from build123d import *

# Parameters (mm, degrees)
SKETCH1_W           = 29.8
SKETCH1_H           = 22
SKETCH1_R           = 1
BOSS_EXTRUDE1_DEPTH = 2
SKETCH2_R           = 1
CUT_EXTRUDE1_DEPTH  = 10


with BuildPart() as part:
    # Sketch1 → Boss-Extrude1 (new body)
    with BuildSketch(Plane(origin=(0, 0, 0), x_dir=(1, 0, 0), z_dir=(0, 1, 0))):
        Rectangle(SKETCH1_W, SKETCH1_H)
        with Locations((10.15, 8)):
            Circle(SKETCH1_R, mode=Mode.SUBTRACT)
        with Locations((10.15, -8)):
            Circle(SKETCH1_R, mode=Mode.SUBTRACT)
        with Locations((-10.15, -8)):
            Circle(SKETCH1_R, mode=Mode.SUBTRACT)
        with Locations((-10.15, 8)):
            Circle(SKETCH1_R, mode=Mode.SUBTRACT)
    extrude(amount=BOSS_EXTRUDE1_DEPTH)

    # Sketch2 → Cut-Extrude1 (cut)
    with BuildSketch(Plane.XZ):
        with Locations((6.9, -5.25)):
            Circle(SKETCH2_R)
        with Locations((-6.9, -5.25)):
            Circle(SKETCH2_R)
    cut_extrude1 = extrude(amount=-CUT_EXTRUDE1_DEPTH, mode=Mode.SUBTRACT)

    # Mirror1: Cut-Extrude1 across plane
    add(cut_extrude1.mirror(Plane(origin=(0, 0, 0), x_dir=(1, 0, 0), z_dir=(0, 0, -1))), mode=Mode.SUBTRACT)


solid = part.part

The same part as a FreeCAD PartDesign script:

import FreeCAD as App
import Part
import Sketcher

V = App.Vector


def add_polygon(sketch, points):
    """Adds a closed chain of lines whose ends are joined by coincident constraints."""
    first, n = sketch.GeometryCount, len(points)
    for a, b in zip(points, points[1:] + points[:1]):
        sketch.addGeometry(Part.LineSegment(App.Vector(*a, 0), App.Vector(*b, 0)), False)
    for i in range(n):
        sketch.addConstraint(Sketcher.Constraint("Coincident", first + i, 2, first + (i + 1) % n, 1))

doc = App.newDocument("Part")
body = doc.addObject("PartDesign::Body", "Body")

# Sketch on XZ plane
sketch1 = body.newObject("Sketcher::SketchObject", "Sketch")
sketch1.AttachmentSupport = (doc.getObject("XZ_Plane"), [""])
sketch1.MapMode = "FlatFace"
add_polygon(sketch1, [(-14.9, -11), (-14.9, 11), (14.9, 11), (14.9, -11)])  # lines 0-3
sketch1.addGeometry(Part.Circle(V(-10.15, 8, 0), V(0, 0, 1), 1), False)  # 4
sketch1.addGeometry(Part.Circle(V(10.15, 8, 0), V(0, 0, 1), 1), False)  # 5
sketch1.addGeometry(Part.Circle(V(-10.15, -8, 0), V(0, 0, 1), 1), False)  # 6
sketch1.addGeometry(Part.Circle(V(10.15, -8, 0), V(0, 0, 1), 1), False)  # 7
sketch1.addConstraint(Sketcher.Constraint("Vertical", 0))
sketch1.addConstraint(Sketcher.Constraint("Horizontal", 1))
sketch1.addConstraint(Sketcher.Constraint("Vertical", 2))
sketch1.addConstraint(Sketcher.Constraint("Horizontal", 3))
sketch1.addConstraint(Sketcher.Constraint("Equal", 4, 5))
sketch1.addConstraint(Sketcher.Constraint("Equal", 5, 6))
sketch1.addConstraint(Sketcher.Constraint("Equal", 6, 7))
sketch1.addConstraint(Sketcher.Constraint("Symmetric", 5, 3, 6, 3, -1, 1))
sketch1.addConstraint(Sketcher.Constraint("Symmetric", 4, 3, 7, 3, -1, 1))
sketch1.addConstraint(Sketcher.Constraint("Symmetric", 0, 2, 2, 2, -1, 1))
sketch1.addConstraint(Sketcher.Constraint("Symmetric", 4, 3, 5, 3, -2))
sketch1.addConstraint(Sketcher.Constraint("Diameter", 4, 2.0))
sketch1.addConstraint(Sketcher.Constraint("DistanceY", 0, 1, 0, 2, 22.0))
sketch1.addConstraint(Sketcher.Constraint("DistanceX", 1, 1, 1, 2, 29.8))
sketch1.addConstraint(Sketcher.Constraint("DistanceY", -1, 1, 4, 3, 8.0))
sketch1.addConstraint(Sketcher.Constraint("DistanceX", 4, 3, 5, 3, 20.3))
pad1 = body.newObject("PartDesign::Pad", "Pad")
pad1.Profile = sketch1
pad1.Length = 2
pad1.Reversed = True

# Sketch on XZ plane
sketch2 = body.newObject("Sketcher::SketchObject", "Sketch001")
sketch2.AttachmentSupport = (doc.getObject("XZ_Plane"), [""])
sketch2.MapMode = "FlatFace"
sketch2.addGeometry(Part.Circle(V(6.9, -5.25, 0), V(0, 0, 1), 1), False)
sketch2.addGeometry(Part.Circle(V(-6.9, -5.25, 0), V(0, 0, 1), 1), False)
sketch2.addConstraint(Sketcher.Constraint("Equal", 0, 1))
sketch2.addConstraint(Sketcher.Constraint("Symmetric", 0, 3, 1, 3, -2))
sketch2.addConstraint(Sketcher.Constraint("Diameter", 0, 2.0))
sketch2.addConstraint(Sketcher.Constraint("DistanceX", -1, 1, 0, 3, 6.9))
sketch2.addConstraint(Sketcher.Constraint("DistanceY", 0, 3, -1, 1, 5.25))
pocket1 = body.newObject("PartDesign::Pocket", "Pocket")
pocket1.Profile = sketch2
pocket1.Length = 10
doc.recompute()

mirrored = body.newObject("PartDesign::Mirrored", "Mirrored")
mirrored.Originals = [pocket1]
mirrored.MirrorPlane = (doc.getObject("XY_Plane"), [""])
body.Tip = mirrored

doc.recompute()
